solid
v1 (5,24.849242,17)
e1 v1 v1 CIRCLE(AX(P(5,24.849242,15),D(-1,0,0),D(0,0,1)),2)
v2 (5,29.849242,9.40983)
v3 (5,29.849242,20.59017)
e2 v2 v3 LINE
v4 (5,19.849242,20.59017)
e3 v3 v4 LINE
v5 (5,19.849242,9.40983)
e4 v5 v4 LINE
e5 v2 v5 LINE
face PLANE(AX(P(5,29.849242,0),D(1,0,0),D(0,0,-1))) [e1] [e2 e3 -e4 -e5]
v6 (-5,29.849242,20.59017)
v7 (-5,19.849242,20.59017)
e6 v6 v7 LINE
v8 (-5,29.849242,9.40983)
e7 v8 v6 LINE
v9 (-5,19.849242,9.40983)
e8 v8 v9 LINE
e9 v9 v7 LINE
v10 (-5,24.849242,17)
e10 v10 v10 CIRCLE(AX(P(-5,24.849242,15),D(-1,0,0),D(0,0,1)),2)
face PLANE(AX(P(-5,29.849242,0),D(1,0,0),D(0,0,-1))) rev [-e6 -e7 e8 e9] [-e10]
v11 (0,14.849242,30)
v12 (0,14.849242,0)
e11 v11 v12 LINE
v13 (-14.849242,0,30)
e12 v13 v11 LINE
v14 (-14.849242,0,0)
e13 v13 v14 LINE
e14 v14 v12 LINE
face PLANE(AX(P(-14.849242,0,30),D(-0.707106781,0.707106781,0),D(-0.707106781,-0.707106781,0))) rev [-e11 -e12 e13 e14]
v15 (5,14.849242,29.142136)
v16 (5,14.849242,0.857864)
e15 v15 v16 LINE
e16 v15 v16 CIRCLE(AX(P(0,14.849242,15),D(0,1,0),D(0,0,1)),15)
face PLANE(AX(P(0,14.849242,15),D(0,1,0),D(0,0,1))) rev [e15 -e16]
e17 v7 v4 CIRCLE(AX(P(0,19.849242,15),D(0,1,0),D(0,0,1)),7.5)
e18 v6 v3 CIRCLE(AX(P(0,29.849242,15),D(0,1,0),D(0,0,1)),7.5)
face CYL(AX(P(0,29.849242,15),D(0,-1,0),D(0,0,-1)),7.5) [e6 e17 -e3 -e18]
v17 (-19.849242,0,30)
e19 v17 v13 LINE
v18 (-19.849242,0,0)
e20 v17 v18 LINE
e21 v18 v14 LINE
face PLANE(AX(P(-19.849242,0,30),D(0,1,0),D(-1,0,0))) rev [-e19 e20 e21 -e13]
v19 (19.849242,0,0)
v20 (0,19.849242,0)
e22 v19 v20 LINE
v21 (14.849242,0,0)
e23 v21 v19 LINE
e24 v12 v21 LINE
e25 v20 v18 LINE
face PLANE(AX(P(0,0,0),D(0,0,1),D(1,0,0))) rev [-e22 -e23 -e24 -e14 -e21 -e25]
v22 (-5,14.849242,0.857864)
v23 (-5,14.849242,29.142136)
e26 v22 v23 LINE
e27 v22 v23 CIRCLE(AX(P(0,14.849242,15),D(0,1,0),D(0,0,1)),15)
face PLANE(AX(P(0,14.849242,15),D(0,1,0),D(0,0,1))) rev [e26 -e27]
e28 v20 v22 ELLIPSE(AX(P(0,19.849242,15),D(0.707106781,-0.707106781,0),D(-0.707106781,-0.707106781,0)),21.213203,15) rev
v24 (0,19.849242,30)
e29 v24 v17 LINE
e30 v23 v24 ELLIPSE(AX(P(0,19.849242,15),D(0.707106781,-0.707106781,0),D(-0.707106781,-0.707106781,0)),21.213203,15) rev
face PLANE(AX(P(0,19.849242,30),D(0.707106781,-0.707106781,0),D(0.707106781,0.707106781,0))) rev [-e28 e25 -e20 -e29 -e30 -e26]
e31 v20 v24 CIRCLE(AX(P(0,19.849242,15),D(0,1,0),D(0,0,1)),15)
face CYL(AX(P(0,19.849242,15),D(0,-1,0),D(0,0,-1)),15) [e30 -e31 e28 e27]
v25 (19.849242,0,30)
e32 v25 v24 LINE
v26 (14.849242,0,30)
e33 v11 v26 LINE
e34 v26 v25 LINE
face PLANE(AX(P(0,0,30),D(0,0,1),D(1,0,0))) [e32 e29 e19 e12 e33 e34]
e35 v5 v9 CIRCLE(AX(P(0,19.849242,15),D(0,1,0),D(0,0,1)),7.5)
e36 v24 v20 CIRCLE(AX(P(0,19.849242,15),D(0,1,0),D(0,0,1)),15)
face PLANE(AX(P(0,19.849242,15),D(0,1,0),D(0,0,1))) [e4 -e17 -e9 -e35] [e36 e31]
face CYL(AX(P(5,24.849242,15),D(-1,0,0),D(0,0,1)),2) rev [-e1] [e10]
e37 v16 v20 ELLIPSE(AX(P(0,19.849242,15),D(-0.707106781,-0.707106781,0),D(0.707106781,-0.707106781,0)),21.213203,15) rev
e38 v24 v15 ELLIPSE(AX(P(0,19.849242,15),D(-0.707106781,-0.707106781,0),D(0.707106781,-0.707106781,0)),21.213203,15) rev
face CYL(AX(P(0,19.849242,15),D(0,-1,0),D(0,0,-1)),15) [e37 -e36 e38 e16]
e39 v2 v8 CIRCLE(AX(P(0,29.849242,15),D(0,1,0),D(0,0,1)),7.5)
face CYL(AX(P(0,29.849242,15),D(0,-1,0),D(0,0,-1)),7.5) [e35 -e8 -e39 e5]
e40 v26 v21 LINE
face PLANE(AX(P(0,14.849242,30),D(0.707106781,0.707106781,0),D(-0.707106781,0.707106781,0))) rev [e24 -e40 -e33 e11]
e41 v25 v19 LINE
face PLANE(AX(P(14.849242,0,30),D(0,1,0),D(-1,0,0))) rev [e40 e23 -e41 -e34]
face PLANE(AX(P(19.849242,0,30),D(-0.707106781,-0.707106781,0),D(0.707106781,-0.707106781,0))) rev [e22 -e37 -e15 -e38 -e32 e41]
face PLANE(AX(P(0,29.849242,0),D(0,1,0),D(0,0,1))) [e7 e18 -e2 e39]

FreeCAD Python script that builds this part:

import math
import FreeCAD as App
import Part
import Sketcher

V = App.Vector
Q = App.Units.Quantity


def add_polygon(sketch, points):
    """Adds a closed chain of lines whose ends are joined by coincident constraints."""
    first, n = sketch.GeometryCount, len(points)
    for a, b in zip(points, points[1:] + points[:1]):
        sketch.addGeometry(Part.LineSegment(App.Vector(*a, 0), App.Vector(*b, 0)), False)
    for i in range(n):
        sketch.addConstraint(Sketcher.Constraint("Coincident", first + i, 2, first + (i + 1) % n, 1))

doc = App.newDocument("Part")
params = doc.addObject("Spreadsheet::Sheet", "Params")
for row, (alias, value) in enumerate([
    ("sketch1_width", "5 mm"),
    ("sketch1_length", "21 mm"),
    ("pad1_length", "30 mm"),
    ("sketch2_diameter", "30 mm"),
    ("pad2_length", "5 mm"),
    ("sketch3_radius", "7.5 mm"),
    ("pad3_length", "10 mm"),
    ("sketch4_diameter", "4 mm"),
    ("pocket1_length", "10 mm"),
], start=1):
    params.set(f"A{row}", alias)
    params.set(f"B{row}", "=" + value)
    params.setAlias(f"B{row}", alias)

body = doc.addObject("PartDesign::Body", "Body")

sketch1 = doc.addObject("Sketcher::SketchObject", "Sketch")
body.addObject(sketch1)
sketch1.AttachmentSupport = (doc.XY_Plane, [""])
sketch1.MapMode = "FlatFace"
add_polygon(sketch1, [(-14.8, 0), (0, 14.8), (14.8, 0), (19.8, 0), (0, 19.8), (-19.8, 0)])
sketch1.addConstraint(Sketcher.Constraint("Horizontal", 2))
sketch1.addConstraint(Sketcher.Constraint("Horizontal", 5))
sketch1.addConstraint(Sketcher.Constraint("Symmetric", 2, 2, 4, 2, -1, 1))
sketch1.addConstraint(Sketcher.Constraint("Symmetric", 1, 2, 5, 2, -2))
sketch1.addConstraint(Sketcher.Constraint("PointOnObject", 0, 2, -2))
sketch1.addConstraint(Sketcher.Constraint("PointOnObject", 3, 2, -2))
sketch1.addConstraint(Sketcher.Constraint("Perpendicular", 0, 1))
sketch1.addConstraint(Sketcher.Constraint("Parallel", 1, 3))
sketch1.addConstraint(Sketcher.Constraint("DistanceX", 2, 1, 2, 2, Q("5 mm")))
sketch1.addConstraint(Sketcher.Constraint("Distance", 0, Q("21 mm")))
sketch1.setExpression("Constraints[14]", "Params.sketch1_width")
sketch1.setExpression("Constraints[15]", "Params.sketch1_length")
pad1 = doc.addObject("PartDesign::Pad", "Pad")
body.addObject(pad1)
pad1.Profile = sketch1
pad1.setExpression("Length", "Params.pad1_length")

sketch2 = doc.addObject("Sketcher::SketchObject", "Sketch001")
body.addObject(sketch2)
sketch2.AttachmentSupport = (doc.XZ_Plane, [""])
sketch2.MapMode = "FlatFace"
sketch2.AttachmentOffset = App.Placement(V(0, 0, -14.849242), App.Rotation())
sketch2.addGeometry(Part.Circle(V(0, 15, 0), V(0, 0, 1), 15), False)
sketch2.addConstraint(Sketcher.Constraint("PointOnObject", 0, 3, -2))
sketch2.addConstraint(Sketcher.Constraint("Diameter", 0, Q("30 mm")))
sketch2.addConstraint(Sketcher.Constraint("DistanceY", -1, 1, 0, 3, Q("15 mm")))
sketch2.setExpression("Constraints[1]", "Params.sketch2_diameter")
pad2 = doc.addObject("PartDesign::Pad", "Pad001")
body.addObject(pad2)
pad2.Profile = sketch2
pad2.setExpression("Length", "Params.pad2_length")
pad2.Reversed = True

sketch3 = doc.addObject("Sketcher::SketchObject", "Sketch002")
body.addObject(sketch3)
sketch3.AttachmentSupport = (doc.XZ_Plane, [""])
sketch3.MapMode = "FlatFace"
sketch3.AttachmentOffset = App.Placement(V(0, 0, -19.849242), App.Rotation())
sketch3.addGeometry(Part.ArcOfCircle(Part.Circle(V(0, 15, 0), V(0, 0, 1), 8), math.radians(-132), math.radians(-48)), False)
sketch3.addGeometry(Part.LineSegment(V(-5, 9, 0), V(-5, 21, 0)), False)
sketch3.addGeometry(Part.ArcOfCircle(Part.Circle(V(0, 15, 0), V(0, 0, 1), 8), math.radians(48), math.radians(132)), False)
sketch3.addGeometry(Part.LineSegment(V(5, 21, 0), V(5, 9, 0)), False)
sketch3.addConstraint(Sketcher.Constraint("Coincident", 0, 1, 1, 1))
sketch3.addConstraint(Sketcher.Constraint("Coincident", 1, 2, 2, 2))
sketch3.addConstraint(Sketcher.Constraint("Coincident", 2, 1, 3, 1))
sketch3.addConstraint(Sketcher.Constraint("Coincident", 3, 2, 0, 2))
sketch3.addConstraint(Sketcher.Constraint("Vertical", 1))
sketch3.addConstraint(Sketcher.Constraint("Vertical", 3))
sketch3.addConstraint(Sketcher.Constraint("Coincident", 2, 3, 0, 3))
sketch3.addConstraint(Sketcher.Constraint("Equal", 0, 2))
sketch3.addConstraint(Sketcher.Constraint("Symmetric", 1, 2, 2, 1, -2))
sketch3.addConstraint(Sketcher.Constraint("Radius", 0, Q("7.5 mm")))
sketch3.addConstraint(Sketcher.Constraint("DistanceY", -1, 1, 0, 3, Q("15 mm")))
sketch3.addConstraint(Sketcher.Constraint("DistanceX", 0, 1, -1, 1, Q("5 mm")))
sketch3.setExpression("Constraints[9]", "Params.sketch3_radius")
pad3 = doc.addObject("PartDesign::Pad", "Pad002")
body.addObject(pad3)
pad3.Profile = sketch3
pad3.setExpression("Length", "Params.pad3_length")
pad3.Reversed = True

sketch4 = doc.addObject("Sketcher::SketchObject", "Sketch003")
body.addObject(sketch4)
sketch4.AttachmentSupport = (doc.YZ_Plane, [""])
sketch4.MapMode = "FlatFace"
sketch4.AttachmentOffset = App.Placement(V(0, 0, -5), App.Rotation())
sketch4.addGeometry(Part.Circle(V(24.8, 15, 0), V(0, 0, 1), 2), False)
sketch4.addConstraint(Sketcher.Constraint("Diameter", 0, Q("4 mm")))
sketch4.addConstraint(Sketcher.Constraint("DistanceY", -1, 1, 0, 3, Q("15 mm")))
sketch4.addConstraint(Sketcher.Constraint("DistanceX", -1, 1, 0, 3, Q("24.849242 mm")))
sketch4.setExpression("Constraints[0]", "Params.sketch4_diameter")
pocket1 = doc.addObject("PartDesign::Pocket", "Pocket")
body.addObject(pocket1)
pocket1.Profile = sketch4
pocket1.setExpression("Length", "Params.pocket1_length")
pocket1.Reversed = True

doc.recompute()
